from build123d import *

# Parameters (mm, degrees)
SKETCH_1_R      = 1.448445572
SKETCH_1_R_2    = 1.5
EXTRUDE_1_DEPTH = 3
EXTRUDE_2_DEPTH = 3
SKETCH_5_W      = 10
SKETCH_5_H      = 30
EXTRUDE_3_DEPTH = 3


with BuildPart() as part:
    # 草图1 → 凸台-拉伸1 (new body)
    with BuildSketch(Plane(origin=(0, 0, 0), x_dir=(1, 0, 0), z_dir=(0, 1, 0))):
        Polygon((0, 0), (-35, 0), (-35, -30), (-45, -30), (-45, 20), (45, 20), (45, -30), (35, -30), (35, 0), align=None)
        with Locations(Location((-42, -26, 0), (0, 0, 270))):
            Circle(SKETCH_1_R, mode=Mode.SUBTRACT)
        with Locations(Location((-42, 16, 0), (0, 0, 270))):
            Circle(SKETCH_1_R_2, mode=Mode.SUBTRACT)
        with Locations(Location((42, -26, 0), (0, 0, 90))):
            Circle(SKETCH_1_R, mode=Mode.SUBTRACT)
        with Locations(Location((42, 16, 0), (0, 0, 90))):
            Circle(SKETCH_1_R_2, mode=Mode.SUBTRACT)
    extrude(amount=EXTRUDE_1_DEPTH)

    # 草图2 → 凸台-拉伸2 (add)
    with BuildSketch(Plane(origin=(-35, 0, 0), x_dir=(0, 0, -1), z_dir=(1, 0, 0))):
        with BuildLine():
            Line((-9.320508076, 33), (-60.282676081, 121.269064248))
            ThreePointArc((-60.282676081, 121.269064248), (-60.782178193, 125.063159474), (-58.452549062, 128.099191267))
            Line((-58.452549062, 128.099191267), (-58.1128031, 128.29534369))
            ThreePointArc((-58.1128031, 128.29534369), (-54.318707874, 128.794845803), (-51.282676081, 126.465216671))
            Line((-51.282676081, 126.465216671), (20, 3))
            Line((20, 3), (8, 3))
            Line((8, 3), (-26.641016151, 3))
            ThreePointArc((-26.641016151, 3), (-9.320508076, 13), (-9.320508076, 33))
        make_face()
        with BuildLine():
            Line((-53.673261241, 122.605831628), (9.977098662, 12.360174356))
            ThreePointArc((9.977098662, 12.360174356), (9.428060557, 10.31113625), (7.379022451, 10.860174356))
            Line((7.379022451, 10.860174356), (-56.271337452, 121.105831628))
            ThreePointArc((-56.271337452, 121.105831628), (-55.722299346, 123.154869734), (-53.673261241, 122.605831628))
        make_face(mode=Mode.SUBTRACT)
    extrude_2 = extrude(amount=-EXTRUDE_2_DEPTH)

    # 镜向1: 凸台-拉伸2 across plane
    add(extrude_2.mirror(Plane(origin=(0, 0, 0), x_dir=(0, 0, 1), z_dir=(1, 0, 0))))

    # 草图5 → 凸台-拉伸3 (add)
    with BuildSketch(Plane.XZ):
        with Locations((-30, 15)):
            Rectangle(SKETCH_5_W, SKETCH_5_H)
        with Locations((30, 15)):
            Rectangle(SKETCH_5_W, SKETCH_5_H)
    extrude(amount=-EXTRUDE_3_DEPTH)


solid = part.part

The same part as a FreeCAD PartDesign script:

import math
import FreeCAD as App
import Part
import Sketcher
from FreeCAD import Vector
Q = App.Units.Quantity


def add_polygon(sketch, points):
    """Adds a closed chain of lines whose ends are joined by coincident constraints."""
    first, n = sketch.GeometryCount, len(points)
    for a, b in zip(points, points[1:] + points[:1]):
        sketch.addGeometry(Part.LineSegment(App.Vector(*a, 0), App.Vector(*b, 0)), False)
    for i in range(n):
        sketch.addConstraint(Sketcher.Constraint("Coincident", first + i, 2, first + (i + 1) % n, 1))

doc = App.newDocument("Part")
body = doc.addObject("PartDesign::Body", "Body")

sketch1 = body.newObject("Sketcher::SketchObject", "Sketch")
sketch1.AttachmentSupport = (doc.getObject("XZ_Plane"), [""])
sketch1.MapMode = "FlatFace"
add_polygon(sketch1, [(-35, 0), (35, 0), (35, 30), (45, 30), (45, -20), (-45, -20), (-45, 30), (-35, 30)])
sketch1.addGeometry(Part.Circle(Vector(42, 26, 0), Vector(0, 0, 1), 1.448446), False)
sketch1.addGeometry(Part.Circle(Vector(-42, 26, 0), Vector(0, 0, 1), 1.448446), False)
sketch1.addGeometry(Part.Circle(Vector(42, -16, 0), Vector(0, 0, 1), 1.5), False)
sketch1.addGeometry(Part.Circle(Vector(-42, -16, 0), Vector(0, 0, 1), 1.5), False)
sketch1.addConstraint([
    Sketcher.Constraint("Horizontal", 0),
    Sketcher.Constraint("Vertical", 1),
    Sketcher.Constraint("Horizontal", 2),
    Sketcher.Constraint("Vertical", 3),
    Sketcher.Constraint("Horizontal", 4),
    Sketcher.Constraint("Vertical", 5),
    Sketcher.Constraint("Horizontal", 6),
    Sketcher.Constraint("Vertical", 7),
    Sketcher.Constraint("Equal", 8, 9),
    Sketcher.Constraint("Equal", 10, 11),
    Sketcher.Constraint("Symmetric", 0, 2, 7, 2, -1, 1),
    Sketcher.Constraint("Symmetric", 8, 3, 9, 3, -2),
    Sketcher.Constraint("Symmetric", 10, 3, 11, 3, -2),
    Sketcher.Constraint("Symmetric", 2, 2, 5, 2, -2),
    Sketcher.Constraint("Vertical", 8, 3, 10, 3),
    Sketcher.Constraint("Diameter", 10, Q("3 mm")),
    Sketcher.Constraint("DistanceX", 0, 1, 0, 2, Q("70 mm")),
    Sketcher.Constraint("DistanceX", 2, 1, 2, 2, Q("10 mm")),
    Sketcher.Constraint("DistanceY", 1, 1, 1, 2, Q("30 mm")),
    Sketcher.Constraint("DistanceY", 3, 2, 3, 1, Q("50 mm")),
    Sketcher.Constraint("DistanceX", -1, 1, 8, 3, Q("42 mm")),
    Sketcher.Constraint("DistanceY", -1, 1, 8, 3, Q("26 mm")),
    Sketcher.Constraint("DistanceY", 10, 3, -1, 1, Q("16 mm")),
    Sketcher.Constraint("Diameter", 8, Q("2.896891 mm")),
])
pad1 = body.newObject("PartDesign::Pad", "Pad")
pad1.Profile = sketch1
pad1.Length = 3
pad1.Reversed = True

sketch2 = body.newObject("Sketcher::SketchObject", "Sketch001")
sketch2.AttachmentSupport = (doc.getObject("YZ_Plane"), [""])
sketch2.MapMode = "FlatFace"
sketch2.AttachmentOffset = App.Placement(Vector(0, 0, -35), App.Rotation())
sketch2.addGeometry([
    Part.LineSegment(Vector(121.269064, 60.282676, 0), Vector(33, 9.320508, 0)),
    Part.ArcOfCircle(Part.Circle(Vector(23, 26.641016, 0), Vector(0, 0, 1), 20), math.radians(-180), math.radians(-60)),
    Part.LineSegment(Vector(3, 26.641016, 0), Vector(3, -20, 0)),
    Part.LineSegment(Vector(3, -20, 0), Vector(126.465217, 51.282676, 0)),
    Part.ArcOfCircle(Part.Circle(Vector(123.965217, 55.612803, 0), Vector(0, 0, 1), 5), math.radians(-60), math.radians(30)),
    Part.LineSegment(Vector(128.295344, 58.112803, 0), Vector(128.099191, 58.452549, 0)),
    Part.ArcOfCircle(Part.Circle(Vector(123.769064, 55.952549, 0), Vector(0, 0, 1), 5), math.radians(30), math.radians(120)),
    Part.LineSegment(Vector(122.605832, 53.673261, 0), Vector(12.360174, -9.977099, 0)),
    Part.ArcOfCircle(Part.Circle(Vector(11.610174, -8.678061, 0), Vector(0, 0, 1), 1.5), math.radians(120), math.radians(300)),
    Part.LineSegment(Vector(10.860174, -7.379022, 0), Vector(121.105832, 56.271337, 0)),
    Part.ArcOfCircle(Part.Circle(Vector(121.855832, 54.972299, 0), Vector(0, 0, 1), 1.5), math.radians(-60), math.radians(120)),
], False)
sketch2.addConstraint([
    Sketcher.Constraint("Tangent", 0, 2, 1, 2),
    Sketcher.Constraint("Tangent", 1, 1, 2, 1),
    Sketcher.Constraint("Coincident", 2, 2, 3, 1),
    Sketcher.Constraint("Tangent", 3, 2, 4, 1),
    Sketcher.Constraint("Tangent", 4, 2, 5, 1),
    Sketcher.Constraint("Tangent", 5, 2, 6, 1),
    Sketcher.Constraint("Tangent", 6, 2, 0, 1),
    Sketcher.Constraint("Tangent", 7, 2, 8, 2),
    Sketcher.Constraint("Tangent", 8, 1, 9, 1),
    Sketcher.Constraint("Tangent", 9, 2, 10, 2),
    Sketcher.Constraint("Tangent", 10, 1, 7, 1),
    Sketcher.Constraint("Vertical", 2),
    Sketcher.Constraint("Equal", 4, 6),
    Sketcher.Constraint("Equal", 8, 10),
    Sketcher.Constraint("Parallel", 0, 3),
    Sketcher.Constraint("Perpendicular", 3, 5),
    Sketcher.Constraint("Perpendicular", 5, 7),
    Sketcher.Constraint("Radius", 1, Q("20 mm")),
    Sketcher.Constraint("Radius", 4, Q("5 mm")),
    Sketcher.Constraint("Radius", 8, Q("1.5 mm")),
    Sketcher.Constraint("Angle", 0, Q("-150 deg")),
    Sketcher.Constraint("DistanceX", -1, 1, 1, 3, Q("23 mm")),
    Sketcher.Constraint("DistanceY", 2, 2, -1, 1, Q("20 mm")),
    Sketcher.Constraint("DistanceY", -1, 1, 10, 3, Q("54.972299 mm")),
    Sketcher.Constraint("DistanceY", 7, 2, -1, 1, Q("9.977099 mm")),
    Sketcher.Constraint("DistanceY", 2, 2, 2, 1, Q("46.641016 mm")),
    Sketcher.Constraint("DistanceY", -1, 1, 6, 3, Q("55.952549 mm")),
    Sketcher.Constraint("DistanceX", -1, 1, 10, 3, Q("121.855832 mm")),
])
pad2 = body.newObject("PartDesign::Pad", "Pad001")
pad2.Profile = sketch2
pad2.Length = 3
pad2.Reversed = True
doc.recompute()

mirrored = body.newObject("PartDesign::Mirrored", "Mirrored")
mirrored.Originals = [pad2]
mirrored.MirrorPlane = (doc.getObject("YZ_Plane"), [""])
body.Tip = mirrored

sketch3 = body.newObject("Sketcher::SketchObject", "Sketch002")
sketch3.AttachmentSupport = (doc.getObject("XZ_Plane"), [""])
sketch3.MapMode = "FlatFace"
add_polygon(sketch3, [(-35, 30), (-35, 0), (-25, 0), (-25, 30)])
add_polygon(sketch3, [(25, 30), (25, 0), (35, 0), (35, 30)])
sketch3.addConstraint([
    Sketcher.Constraint("Vertical", 0),
    Sketcher.Constraint("Horizontal", 1),
    Sketcher.Constraint("Vertical", 2),
    Sketcher.Constraint("Horizontal", 3),
    Sketcher.Constraint("Vertical", 4),
    Sketcher.Constraint("Horizontal", 5),
    Sketcher.Constraint("Vertical", 6),
    Sketcher.Constraint("Horizontal", 7),
    Sketcher.Constraint("Symmetric", 1, 2, 4, 2, -1, 1),
    Sketcher.Constraint("Symmetric", 0, 2, 5, 2, -2),
    Sketcher.Constraint("Horizontal", 3, 2, 6, 2),
    Sketcher.Constraint("DistanceX", 1, 1, 1, 2, Q("10 mm")),
    Sketcher.Constraint("DistanceY", 0, 2, 0, 1, Q("30 mm")),
    Sketcher.Constraint("DistanceX", 0, 2, -1, 1, Q("35 mm")),
])
pad3 = body.newObject("PartDesign::Pad", "Pad002")
pad3.Profile = sketch3
pad3.Length = 3
pad3.Reversed = True

doc.recompute()
